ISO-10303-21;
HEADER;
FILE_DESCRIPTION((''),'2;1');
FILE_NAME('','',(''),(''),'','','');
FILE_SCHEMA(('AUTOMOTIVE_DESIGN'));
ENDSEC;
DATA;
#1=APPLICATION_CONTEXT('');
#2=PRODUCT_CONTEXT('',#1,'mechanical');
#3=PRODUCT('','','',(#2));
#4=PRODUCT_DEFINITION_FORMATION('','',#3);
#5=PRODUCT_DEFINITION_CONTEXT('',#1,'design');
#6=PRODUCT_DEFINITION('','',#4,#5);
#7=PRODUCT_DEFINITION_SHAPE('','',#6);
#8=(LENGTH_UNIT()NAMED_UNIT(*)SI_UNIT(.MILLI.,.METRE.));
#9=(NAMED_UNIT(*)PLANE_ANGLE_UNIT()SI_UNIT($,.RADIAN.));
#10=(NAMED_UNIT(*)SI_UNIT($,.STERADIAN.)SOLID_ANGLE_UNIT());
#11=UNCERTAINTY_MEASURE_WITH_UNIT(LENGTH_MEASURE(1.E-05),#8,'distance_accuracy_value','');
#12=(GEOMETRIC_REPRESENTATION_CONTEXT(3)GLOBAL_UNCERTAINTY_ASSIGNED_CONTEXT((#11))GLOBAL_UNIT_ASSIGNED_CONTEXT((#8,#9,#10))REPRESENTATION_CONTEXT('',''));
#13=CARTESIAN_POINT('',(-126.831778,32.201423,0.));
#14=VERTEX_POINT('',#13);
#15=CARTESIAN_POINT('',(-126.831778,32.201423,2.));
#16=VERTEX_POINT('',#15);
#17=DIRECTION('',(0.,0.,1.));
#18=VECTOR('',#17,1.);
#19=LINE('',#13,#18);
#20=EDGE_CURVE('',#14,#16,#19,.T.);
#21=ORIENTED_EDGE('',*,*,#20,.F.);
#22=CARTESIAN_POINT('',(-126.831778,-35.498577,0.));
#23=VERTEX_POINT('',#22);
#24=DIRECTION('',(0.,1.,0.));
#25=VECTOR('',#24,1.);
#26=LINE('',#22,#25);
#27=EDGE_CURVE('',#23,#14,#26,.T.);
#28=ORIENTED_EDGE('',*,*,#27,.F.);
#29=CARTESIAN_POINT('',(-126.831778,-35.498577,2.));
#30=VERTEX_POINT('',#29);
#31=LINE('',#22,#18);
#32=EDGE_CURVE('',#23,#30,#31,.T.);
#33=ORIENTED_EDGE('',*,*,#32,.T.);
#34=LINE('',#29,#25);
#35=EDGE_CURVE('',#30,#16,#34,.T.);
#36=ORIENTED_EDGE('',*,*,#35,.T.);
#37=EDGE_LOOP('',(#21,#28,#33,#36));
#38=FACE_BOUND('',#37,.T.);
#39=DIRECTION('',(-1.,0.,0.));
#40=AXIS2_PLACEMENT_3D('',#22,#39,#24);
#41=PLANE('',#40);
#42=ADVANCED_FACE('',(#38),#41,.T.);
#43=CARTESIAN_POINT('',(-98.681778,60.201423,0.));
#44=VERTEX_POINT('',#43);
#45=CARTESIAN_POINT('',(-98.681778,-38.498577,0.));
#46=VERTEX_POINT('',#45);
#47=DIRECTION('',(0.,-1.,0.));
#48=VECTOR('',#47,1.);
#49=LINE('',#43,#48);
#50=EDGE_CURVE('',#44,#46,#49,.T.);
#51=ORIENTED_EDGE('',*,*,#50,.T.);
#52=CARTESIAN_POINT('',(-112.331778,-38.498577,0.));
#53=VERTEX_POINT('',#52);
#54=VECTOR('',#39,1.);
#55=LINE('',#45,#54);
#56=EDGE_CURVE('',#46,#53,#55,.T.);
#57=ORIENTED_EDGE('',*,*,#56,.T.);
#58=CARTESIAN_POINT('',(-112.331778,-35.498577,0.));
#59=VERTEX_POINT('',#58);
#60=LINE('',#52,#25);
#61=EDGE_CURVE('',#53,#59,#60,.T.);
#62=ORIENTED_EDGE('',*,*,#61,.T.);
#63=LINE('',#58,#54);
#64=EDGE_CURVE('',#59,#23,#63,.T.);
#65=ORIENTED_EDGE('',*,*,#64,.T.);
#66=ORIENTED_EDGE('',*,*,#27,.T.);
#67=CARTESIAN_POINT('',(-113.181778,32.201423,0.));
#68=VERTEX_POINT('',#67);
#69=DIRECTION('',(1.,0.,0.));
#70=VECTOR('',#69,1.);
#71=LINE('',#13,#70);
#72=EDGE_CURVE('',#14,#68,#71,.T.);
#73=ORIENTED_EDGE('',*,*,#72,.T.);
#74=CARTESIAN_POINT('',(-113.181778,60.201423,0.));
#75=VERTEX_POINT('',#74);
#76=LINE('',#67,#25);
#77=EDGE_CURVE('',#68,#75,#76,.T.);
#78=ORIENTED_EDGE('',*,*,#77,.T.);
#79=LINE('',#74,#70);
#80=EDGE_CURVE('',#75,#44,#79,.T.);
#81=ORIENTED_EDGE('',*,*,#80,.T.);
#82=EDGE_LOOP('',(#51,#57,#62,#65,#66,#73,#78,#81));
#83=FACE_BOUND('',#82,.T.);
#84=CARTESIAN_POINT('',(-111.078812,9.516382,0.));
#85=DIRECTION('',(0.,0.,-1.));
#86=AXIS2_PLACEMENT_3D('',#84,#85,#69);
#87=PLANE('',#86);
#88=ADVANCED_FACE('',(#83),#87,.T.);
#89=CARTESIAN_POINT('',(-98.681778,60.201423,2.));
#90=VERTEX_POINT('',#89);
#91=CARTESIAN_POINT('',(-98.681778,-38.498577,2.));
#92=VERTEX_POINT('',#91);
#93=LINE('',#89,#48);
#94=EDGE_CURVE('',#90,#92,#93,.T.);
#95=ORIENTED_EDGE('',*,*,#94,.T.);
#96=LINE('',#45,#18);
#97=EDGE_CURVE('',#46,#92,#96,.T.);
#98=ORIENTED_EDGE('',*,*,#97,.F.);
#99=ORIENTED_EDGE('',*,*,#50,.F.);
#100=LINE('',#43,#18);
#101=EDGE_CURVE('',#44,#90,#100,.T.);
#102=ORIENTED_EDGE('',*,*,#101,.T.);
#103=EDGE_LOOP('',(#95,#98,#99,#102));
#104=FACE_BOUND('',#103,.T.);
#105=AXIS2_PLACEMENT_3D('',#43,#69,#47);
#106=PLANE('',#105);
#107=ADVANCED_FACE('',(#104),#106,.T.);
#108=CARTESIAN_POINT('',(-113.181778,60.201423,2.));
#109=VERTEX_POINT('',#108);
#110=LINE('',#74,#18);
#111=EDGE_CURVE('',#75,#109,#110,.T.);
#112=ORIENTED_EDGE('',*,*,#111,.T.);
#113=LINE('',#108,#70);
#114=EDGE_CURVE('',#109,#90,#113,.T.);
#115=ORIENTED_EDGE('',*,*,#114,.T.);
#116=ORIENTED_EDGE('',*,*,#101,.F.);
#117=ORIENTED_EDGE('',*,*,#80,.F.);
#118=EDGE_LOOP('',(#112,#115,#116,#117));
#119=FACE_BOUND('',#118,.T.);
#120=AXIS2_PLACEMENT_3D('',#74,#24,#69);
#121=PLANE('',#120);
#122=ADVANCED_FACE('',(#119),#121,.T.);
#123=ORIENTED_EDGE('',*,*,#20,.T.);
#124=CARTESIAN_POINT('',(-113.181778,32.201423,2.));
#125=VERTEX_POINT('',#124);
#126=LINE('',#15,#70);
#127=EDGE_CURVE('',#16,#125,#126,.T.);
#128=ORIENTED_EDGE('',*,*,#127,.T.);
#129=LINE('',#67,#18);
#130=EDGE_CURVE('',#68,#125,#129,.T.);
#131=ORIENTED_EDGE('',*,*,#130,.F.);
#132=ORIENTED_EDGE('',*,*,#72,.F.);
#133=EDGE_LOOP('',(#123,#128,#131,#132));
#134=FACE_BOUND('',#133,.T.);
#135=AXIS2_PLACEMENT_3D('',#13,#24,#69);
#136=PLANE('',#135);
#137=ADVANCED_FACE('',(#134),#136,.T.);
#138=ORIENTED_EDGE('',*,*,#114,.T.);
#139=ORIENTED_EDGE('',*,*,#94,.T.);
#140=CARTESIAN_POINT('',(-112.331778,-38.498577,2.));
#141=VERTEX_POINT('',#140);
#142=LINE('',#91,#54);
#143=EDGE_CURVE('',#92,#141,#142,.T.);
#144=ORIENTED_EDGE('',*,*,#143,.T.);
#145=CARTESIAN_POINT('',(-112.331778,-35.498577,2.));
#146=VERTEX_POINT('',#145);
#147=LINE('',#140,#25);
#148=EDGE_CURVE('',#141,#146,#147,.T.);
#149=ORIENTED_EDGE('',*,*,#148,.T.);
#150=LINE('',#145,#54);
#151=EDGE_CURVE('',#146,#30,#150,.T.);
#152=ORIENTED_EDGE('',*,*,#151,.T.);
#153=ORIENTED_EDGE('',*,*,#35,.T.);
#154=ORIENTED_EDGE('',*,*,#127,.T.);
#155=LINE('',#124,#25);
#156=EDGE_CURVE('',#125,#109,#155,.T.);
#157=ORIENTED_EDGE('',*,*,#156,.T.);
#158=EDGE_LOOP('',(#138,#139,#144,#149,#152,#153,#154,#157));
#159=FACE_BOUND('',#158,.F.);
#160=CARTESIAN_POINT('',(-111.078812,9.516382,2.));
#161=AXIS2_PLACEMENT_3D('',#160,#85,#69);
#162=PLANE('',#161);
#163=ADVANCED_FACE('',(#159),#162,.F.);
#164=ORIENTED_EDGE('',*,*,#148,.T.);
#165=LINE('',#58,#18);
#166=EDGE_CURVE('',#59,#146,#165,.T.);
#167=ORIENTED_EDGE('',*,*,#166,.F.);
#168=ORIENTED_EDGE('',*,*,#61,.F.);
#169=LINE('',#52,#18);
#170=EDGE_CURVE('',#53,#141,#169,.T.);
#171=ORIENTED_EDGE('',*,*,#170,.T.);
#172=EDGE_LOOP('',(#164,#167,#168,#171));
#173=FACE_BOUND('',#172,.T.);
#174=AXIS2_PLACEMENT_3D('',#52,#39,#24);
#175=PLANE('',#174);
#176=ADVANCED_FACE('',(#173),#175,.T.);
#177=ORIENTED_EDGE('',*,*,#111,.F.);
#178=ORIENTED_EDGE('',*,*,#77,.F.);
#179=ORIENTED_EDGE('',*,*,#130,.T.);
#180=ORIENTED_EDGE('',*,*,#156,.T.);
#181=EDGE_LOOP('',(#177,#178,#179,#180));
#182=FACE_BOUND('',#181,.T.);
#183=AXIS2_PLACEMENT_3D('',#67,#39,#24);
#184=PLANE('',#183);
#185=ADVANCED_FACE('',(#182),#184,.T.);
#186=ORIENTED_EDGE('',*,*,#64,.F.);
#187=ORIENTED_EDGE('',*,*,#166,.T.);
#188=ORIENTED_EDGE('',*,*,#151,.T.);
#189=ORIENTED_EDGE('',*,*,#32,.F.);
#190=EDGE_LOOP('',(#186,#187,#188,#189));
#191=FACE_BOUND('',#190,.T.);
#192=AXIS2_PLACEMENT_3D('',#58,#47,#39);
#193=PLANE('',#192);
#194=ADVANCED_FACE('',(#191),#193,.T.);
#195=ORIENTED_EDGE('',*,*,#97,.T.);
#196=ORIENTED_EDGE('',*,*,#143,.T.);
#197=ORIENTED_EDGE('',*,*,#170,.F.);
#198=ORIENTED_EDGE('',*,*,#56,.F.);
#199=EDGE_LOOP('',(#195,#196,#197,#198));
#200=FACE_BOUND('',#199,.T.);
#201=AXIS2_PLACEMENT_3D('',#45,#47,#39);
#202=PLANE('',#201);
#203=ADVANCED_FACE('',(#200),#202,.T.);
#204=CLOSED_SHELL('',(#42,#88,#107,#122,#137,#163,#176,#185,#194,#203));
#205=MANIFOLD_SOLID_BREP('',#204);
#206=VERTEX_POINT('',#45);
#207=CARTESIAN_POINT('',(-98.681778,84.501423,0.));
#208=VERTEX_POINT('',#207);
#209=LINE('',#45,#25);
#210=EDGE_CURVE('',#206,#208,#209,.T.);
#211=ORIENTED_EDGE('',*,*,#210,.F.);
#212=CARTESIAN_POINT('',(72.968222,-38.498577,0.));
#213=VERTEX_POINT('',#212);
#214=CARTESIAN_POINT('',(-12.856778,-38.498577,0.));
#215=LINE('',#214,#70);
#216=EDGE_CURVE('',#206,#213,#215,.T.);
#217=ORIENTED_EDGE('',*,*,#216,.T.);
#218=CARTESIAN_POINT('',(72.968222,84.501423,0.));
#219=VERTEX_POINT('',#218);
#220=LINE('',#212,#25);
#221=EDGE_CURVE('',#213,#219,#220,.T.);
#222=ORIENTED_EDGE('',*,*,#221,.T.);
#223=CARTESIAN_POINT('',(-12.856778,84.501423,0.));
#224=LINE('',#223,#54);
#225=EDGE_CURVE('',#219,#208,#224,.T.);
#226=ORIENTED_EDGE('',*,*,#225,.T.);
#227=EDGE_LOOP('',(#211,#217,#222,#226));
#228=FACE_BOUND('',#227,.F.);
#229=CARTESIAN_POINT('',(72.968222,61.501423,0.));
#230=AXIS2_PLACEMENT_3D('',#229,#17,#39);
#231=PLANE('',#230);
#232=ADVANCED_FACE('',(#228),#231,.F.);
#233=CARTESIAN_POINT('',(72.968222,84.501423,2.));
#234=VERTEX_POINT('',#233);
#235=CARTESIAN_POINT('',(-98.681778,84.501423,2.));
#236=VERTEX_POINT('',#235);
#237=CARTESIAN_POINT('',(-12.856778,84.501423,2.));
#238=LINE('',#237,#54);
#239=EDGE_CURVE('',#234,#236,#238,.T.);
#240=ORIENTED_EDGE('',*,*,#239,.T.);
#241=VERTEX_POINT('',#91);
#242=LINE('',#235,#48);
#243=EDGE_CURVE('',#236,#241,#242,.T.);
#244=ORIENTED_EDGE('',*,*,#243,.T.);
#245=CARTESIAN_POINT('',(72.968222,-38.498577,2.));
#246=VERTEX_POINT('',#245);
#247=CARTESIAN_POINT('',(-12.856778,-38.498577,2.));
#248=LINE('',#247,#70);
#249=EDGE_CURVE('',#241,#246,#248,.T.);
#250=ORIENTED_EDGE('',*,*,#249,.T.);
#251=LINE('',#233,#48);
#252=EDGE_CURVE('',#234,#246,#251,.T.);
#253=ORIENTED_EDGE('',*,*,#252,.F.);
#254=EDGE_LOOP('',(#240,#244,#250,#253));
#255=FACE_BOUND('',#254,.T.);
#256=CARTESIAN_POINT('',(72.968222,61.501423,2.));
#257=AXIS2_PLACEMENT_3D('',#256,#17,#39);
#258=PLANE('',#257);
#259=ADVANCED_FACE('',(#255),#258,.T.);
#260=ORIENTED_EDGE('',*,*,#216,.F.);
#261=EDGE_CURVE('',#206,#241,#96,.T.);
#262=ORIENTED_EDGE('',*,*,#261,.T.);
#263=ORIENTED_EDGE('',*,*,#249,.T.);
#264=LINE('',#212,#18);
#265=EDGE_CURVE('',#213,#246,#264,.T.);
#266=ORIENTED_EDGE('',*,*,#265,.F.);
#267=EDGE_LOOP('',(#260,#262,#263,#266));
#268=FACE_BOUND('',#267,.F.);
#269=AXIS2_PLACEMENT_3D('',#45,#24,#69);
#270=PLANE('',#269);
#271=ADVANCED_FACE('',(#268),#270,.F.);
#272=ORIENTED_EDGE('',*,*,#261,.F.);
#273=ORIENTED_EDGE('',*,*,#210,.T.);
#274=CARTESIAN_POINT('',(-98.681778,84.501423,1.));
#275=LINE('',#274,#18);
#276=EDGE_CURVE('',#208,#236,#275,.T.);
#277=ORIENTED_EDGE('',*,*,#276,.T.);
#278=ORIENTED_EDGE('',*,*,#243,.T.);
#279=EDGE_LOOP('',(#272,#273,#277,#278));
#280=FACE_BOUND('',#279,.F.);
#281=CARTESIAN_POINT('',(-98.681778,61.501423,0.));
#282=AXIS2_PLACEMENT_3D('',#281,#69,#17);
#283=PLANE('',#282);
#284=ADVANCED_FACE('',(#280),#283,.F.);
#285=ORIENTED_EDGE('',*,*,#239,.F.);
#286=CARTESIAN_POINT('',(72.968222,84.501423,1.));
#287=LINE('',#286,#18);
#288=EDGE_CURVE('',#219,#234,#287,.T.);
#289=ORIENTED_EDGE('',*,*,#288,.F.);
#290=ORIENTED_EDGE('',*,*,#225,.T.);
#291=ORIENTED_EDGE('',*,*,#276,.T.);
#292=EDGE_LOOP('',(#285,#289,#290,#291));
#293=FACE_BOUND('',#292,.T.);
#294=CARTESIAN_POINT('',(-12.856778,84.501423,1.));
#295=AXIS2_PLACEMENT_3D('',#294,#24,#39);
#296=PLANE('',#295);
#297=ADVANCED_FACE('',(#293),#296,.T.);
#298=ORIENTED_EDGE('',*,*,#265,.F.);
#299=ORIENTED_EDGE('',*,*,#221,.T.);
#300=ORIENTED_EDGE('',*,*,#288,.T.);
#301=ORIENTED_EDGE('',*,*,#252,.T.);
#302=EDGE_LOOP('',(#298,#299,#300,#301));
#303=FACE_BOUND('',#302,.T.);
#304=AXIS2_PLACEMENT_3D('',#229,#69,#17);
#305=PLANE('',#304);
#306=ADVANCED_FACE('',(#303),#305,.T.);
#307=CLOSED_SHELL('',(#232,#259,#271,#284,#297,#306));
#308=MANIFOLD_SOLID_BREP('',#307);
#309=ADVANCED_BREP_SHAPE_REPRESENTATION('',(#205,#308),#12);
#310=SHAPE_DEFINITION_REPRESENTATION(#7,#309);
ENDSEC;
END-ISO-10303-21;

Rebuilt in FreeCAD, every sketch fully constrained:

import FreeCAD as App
import Part
import Sketcher
Q = App.Units.Quantity

doc = App.newDocument("Part")
params = doc.addObject("Spreadsheet::Sheet", "Params")
for row, (alias, value) in enumerate([
    ("sketch1_height", "100 mm"),
    ("sketch1_width", "171.65 mm"),
    ("pad1_length", "2 mm"),
    ("sketch2_height", "2 mm"),
    ("sketch2_width", "171.65 mm"),
    ("pad2_length", "23 mm"),
    ("sketch3_height", "3 mm"),
    ("sketch3_height2", "28 mm"),
    ("sketch3_width", "14.5 mm"),
    ("sketch3_height3", "98.7 mm"),
    ("sketch3_width2", "13.65 mm"),
    ("pad3_length", "2 mm"),
], start=1):
    params.set(f"A{row}", alias)
    params.set(f"B{row}", "=" + value)
    params.setAlias(f"B{row}", alias)

body = doc.addObject("PartDesign::Body", "Body")

sketch1 = body.newObject("Sketcher::SketchObject", "Sketch")
sketch1.AttachmentSupport = (doc.getObject("XY_Plane"), [""])
sketch1.MapMode = "FlatFace"
sketch1.addGeometry([
    Part.LineSegment(App.Vector(-99, 62, 0), App.Vector(-99, -38, 0)),
    Part.LineSegment(App.Vector(-99, -38, 0), App.Vector(73, -38, 0)),
    Part.LineSegment(App.Vector(73, -38, 0), App.Vector(73, 62, 0)),
    Part.LineSegment(App.Vector(73, 62, 0), App.Vector(-99, 62, 0)),
], False)
sketch1.addConstraint([
    Sketcher.Constraint("Coincident", 0, 2, 1, 1),
    Sketcher.Constraint("Coincident", 1, 2, 2, 1),
    Sketcher.Constraint("Coincident", 2, 2, 3, 1),
    Sketcher.Constraint("Coincident", 3, 2, 0, 1),
    Sketcher.Constraint("Vertical", 0),
    Sketcher.Constraint("Horizontal", 1),
    Sketcher.Constraint("Vertical", 2),
    Sketcher.Constraint("Horizontal", 3),
    Sketcher.Constraint("DistanceY", 0, 2, 0, 1, Q("100 mm")),
    Sketcher.Constraint("DistanceX", 1, 1, 1, 2, Q("171.65 mm")),
    Sketcher.Constraint("DistanceX", -1, 1, 1, 2, Q("72.968222 mm")),
    Sketcher.Constraint("DistanceY", 0, 2, -1, 1, Q("38.498577 mm")),
])
sketch1.setExpression("Constraints[8]", "Params.sketch1_height")
sketch1.setExpression("Constraints[9]", "Params.sketch1_width")
pad1 = body.newObject("PartDesign::Pad", "Pad")
pad1.Profile = sketch1
pad1.setExpression("Length", "Params.pad1_length")

sketch2 = body.newObject("Sketcher::SketchObject", "Sketch001")
sketch2.AttachmentSupport = (doc.getObject("XZ_Plane"), [""])
sketch2.MapMode = "FlatFace"
sketch2.AttachmentOffset = App.Placement(App.Vector(0, 0, -61.501423), App.Rotation())
sketch2.addGeometry([
    Part.LineSegment(App.Vector(73, 2, 0), App.Vector(73, 0, 0)),
    Part.LineSegment(App.Vector(73, 0, 0), App.Vector(-98.7, 0, 0)),
    Part.LineSegment(App.Vector(-98.7, 0, 0), App.Vector(-98.7, 2, 0)),
    Part.LineSegment(App.Vector(-98.7, 2, 0), App.Vector(73, 2, 0)),
], False)
sketch2.addConstraint([
    Sketcher.Constraint("Coincident", 0, 2, 1, 1),
    Sketcher.Constraint("Coincident", 1, 2, 2, 1),
    Sketcher.Constraint("Coincident", 2, 2, 3, 1),
    Sketcher.Constraint("Coincident", 3, 2, 0, 1),
    Sketcher.Constraint("Vertical", 0),
    Sketcher.Constraint("Horizontal", 1),
    Sketcher.Constraint("Vertical", 2),
    Sketcher.Constraint("Horizontal", 3),
    Sketcher.Constraint("PointOnObject", 0, 2, -1),
    Sketcher.Constraint("DistanceY", 0, 2, 0, 1, Q("2 mm")),
    Sketcher.Constraint("DistanceX", 1, 2, 1, 1, Q("171.65 mm")),
    Sketcher.Constraint("DistanceX", -1, 1, 0, 2, Q("72.968222 mm")),
])
sketch2.setExpression("Constraints[9]", "Params.sketch2_height")
sketch2.setExpression("Constraints[10]", "Params.sketch2_width")
pad2 = body.newObject("PartDesign::Pad", "Pad001")
pad2.Profile = sketch2
pad2.setExpression("Length", "Params.pad2_length")
pad2.Reversed = True
body2 = doc.addObject("PartDesign::Body", "Body001")

sketch3 = body2.newObject("Sketcher::SketchObject", "Sketch002")
sketch3.AttachmentSupport = (doc.getObject("XY_Plane001"), [""])
sketch3.MapMode = "FlatFace"
sketch3.addGeometry([
    Part.LineSegment(App.Vector(-98.7, 60.2, 0), App.Vector(-98.7, -38.5, 0)),
    Part.LineSegment(App.Vector(-98.7, -38.5, 0), App.Vector(-112.3, -38.5, 0)),
    Part.LineSegment(App.Vector(-112.3, -38.5, 0), App.Vector(-112.3, -35.5, 0)),
    Part.LineSegment(App.Vector(-112.3, -35.5, 0), App.Vector(-126.8, -35.5, 0)),
    Part.LineSegment(App.Vector(-126.8, -35.5, 0), App.Vector(-126.8, 32.2, 0)),
    Part.LineSegment(App.Vector(-126.8, 32.2, 0), App.Vector(-113.2, 32.2, 0)),
    Part.LineSegment(App.Vector(-113.2, 32.2, 0), App.Vector(-113.2, 60.2, 0)),
    Part.LineSegment(App.Vector(-113.2, 60.2, 0), App.Vector(-98.7, 60.2, 0)),
], False)
sketch3.addConstraint([
    Sketcher.Constraint("Coincident", 0, 2, 1, 1),
    Sketcher.Constraint("Coincident", 1, 2, 2, 1),
    Sketcher.Constraint("Coincident", 2, 2, 3, 1),
    Sketcher.Constraint("Coincident", 3, 2, 4, 1),
    Sketcher.Constraint("Coincident", 4, 2, 5, 1),
    Sketcher.Constraint("Coincident", 5, 2, 6, 1),
    Sketcher.Constraint("Coincident", 6, 2, 7, 1),
    Sketcher.Constraint("Coincident", 7, 2, 0, 1),
    Sketcher.Constraint("Vertical", 0),
    Sketcher.Constraint("Horizontal", 1),
    Sketcher.Constraint("Vertical", 2),
    Sketcher.Constraint("Horizontal", 3),
    Sketcher.Constraint("Vertical", 4),
    Sketcher.Constraint("Horizontal", 5),
    Sketcher.Constraint("Vertical", 6),
    Sketcher.Constraint("Horizontal", 7),
    Sketcher.Constraint("Equal", 1, 5),
    Sketcher.Constraint("DistanceY", 2, 1, 2, 2, Q("3 mm")),
    Sketcher.Constraint("DistanceY", 6, 1, 6, 2, Q("28 mm")),
    Sketcher.Constraint("DistanceX", 3, 2, 3, 1, Q("14.5 mm")),
    Sketcher.Constraint("DistanceY", 0, 2, 0, 1, Q("98.7 mm")),
    Sketcher.Constraint("DistanceX", 1, 2, 1, 1, Q("13.65 mm")),
    Sketcher.Constraint("DistanceX", 1, 2, -1, 1, Q("112.331778 mm")),
    Sketcher.Constraint("DistanceY", 0, 2, -1, 1, Q("38.498577 mm")),
])
sketch3.setExpression("Constraints[17]", "Params.sketch3_height")
sketch3.setExpression("Constraints[18]", "Params.sketch3_height2")
sketch3.setExpression("Constraints[19]", "Params.sketch3_width")
sketch3.setExpression("Constraints[20]", "Params.sketch3_height3")
sketch3.setExpression("Constraints[21]", "Params.sketch3_width2")
pad3 = body2.newObject("PartDesign::Pad", "Pad002")
pad3.Profile = sketch3
pad3.setExpression("Length", "Params.pad3_length")

doc.recompute()
